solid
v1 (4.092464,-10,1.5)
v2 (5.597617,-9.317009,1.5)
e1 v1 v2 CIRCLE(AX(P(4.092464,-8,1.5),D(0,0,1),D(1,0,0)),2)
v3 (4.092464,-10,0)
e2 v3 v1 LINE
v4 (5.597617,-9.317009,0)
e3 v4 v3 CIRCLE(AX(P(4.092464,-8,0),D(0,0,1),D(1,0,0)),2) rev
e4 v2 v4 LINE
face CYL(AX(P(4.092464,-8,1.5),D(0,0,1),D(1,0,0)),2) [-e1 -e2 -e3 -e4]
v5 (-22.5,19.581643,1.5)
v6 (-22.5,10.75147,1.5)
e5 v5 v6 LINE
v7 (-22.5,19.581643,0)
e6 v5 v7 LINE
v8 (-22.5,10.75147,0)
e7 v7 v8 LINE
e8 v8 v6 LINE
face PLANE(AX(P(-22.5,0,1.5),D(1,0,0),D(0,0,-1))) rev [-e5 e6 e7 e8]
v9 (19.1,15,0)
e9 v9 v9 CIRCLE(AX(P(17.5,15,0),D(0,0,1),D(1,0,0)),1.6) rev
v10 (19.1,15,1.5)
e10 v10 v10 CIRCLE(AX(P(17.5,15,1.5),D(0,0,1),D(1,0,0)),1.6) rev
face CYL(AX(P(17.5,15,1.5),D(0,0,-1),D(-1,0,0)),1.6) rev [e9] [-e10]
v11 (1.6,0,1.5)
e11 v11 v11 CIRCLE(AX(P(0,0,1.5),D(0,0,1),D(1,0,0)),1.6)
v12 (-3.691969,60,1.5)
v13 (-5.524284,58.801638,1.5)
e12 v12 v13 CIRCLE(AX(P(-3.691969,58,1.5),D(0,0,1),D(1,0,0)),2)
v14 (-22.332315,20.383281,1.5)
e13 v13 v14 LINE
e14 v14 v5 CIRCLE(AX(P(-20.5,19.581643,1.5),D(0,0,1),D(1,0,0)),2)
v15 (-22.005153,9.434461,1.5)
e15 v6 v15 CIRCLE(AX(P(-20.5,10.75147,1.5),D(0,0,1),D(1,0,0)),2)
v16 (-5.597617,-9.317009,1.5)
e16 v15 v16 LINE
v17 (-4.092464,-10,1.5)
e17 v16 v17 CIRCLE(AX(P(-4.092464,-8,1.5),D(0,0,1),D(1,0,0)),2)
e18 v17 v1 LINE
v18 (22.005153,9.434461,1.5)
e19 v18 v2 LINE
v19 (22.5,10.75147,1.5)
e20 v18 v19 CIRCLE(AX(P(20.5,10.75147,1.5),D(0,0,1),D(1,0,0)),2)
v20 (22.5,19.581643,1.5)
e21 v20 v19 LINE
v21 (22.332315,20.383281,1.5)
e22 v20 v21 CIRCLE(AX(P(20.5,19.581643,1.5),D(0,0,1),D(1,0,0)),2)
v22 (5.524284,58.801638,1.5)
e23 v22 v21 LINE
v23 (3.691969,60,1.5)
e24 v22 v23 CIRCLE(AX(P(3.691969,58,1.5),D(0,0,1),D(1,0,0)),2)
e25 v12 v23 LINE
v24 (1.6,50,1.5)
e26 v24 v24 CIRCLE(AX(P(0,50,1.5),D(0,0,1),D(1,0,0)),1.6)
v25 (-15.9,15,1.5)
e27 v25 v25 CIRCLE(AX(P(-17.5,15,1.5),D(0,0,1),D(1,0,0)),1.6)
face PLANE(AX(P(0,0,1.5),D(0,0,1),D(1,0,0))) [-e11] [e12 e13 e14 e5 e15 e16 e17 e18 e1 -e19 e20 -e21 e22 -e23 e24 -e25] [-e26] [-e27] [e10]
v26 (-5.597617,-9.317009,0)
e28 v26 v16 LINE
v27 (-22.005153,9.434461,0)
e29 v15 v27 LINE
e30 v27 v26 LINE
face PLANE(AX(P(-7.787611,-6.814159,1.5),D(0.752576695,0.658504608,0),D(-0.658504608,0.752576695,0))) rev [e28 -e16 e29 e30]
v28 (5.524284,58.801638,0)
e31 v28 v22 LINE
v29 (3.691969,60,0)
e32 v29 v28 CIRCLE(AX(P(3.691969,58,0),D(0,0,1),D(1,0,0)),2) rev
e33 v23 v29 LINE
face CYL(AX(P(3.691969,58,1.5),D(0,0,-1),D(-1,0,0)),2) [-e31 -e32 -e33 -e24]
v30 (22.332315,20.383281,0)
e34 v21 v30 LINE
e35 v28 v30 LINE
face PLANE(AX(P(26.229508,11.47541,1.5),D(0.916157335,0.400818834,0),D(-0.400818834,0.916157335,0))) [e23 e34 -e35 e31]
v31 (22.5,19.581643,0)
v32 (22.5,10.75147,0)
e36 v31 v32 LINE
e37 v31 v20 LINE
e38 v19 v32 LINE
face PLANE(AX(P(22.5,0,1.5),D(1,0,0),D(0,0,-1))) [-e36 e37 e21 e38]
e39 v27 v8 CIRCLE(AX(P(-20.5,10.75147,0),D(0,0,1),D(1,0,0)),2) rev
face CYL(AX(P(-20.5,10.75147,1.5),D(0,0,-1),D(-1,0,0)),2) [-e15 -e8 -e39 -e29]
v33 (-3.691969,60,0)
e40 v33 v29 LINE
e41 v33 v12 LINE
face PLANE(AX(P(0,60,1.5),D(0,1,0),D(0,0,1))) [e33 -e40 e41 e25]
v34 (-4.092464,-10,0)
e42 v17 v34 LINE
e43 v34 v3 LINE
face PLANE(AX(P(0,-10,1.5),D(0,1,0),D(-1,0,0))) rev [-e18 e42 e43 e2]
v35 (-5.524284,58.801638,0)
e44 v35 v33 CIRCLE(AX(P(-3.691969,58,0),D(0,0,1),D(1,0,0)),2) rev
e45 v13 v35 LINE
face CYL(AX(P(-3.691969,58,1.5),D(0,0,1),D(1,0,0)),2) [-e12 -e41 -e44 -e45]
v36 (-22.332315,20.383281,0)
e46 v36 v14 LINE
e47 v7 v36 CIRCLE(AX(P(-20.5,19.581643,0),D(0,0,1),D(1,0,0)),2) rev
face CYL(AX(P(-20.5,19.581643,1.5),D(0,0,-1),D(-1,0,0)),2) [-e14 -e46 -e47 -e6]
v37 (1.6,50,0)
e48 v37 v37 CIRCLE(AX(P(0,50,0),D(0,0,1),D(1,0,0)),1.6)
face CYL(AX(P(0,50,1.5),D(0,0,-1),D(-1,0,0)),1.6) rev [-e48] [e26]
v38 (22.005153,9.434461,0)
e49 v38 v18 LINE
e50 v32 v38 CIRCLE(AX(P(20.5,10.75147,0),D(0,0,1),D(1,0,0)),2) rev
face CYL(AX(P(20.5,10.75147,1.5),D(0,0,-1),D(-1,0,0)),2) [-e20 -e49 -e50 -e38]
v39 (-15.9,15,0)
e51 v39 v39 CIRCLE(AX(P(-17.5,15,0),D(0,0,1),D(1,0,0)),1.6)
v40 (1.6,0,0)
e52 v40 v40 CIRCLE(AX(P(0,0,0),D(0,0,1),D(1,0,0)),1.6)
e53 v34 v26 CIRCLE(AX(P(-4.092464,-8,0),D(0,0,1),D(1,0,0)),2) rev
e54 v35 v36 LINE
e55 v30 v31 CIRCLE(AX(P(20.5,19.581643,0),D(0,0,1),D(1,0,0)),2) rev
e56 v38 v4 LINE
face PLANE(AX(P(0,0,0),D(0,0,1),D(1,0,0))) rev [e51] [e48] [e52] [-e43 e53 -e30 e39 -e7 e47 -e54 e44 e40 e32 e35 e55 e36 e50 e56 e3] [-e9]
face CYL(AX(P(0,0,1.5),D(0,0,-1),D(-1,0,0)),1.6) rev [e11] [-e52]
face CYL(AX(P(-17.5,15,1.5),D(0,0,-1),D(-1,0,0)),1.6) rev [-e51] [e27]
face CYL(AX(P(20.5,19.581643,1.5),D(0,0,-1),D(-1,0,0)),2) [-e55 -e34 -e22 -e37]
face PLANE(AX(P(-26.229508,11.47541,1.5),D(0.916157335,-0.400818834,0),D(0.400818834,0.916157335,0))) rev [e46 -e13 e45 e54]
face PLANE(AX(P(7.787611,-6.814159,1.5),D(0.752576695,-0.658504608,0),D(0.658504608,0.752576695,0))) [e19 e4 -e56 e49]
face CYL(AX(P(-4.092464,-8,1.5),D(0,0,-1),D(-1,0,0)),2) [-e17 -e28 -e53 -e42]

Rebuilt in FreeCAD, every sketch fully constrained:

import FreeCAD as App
import Part
import Sketcher


def edges_at(feature, points):
    """Names of the edges that pass closest to the given points."""
    edges = feature.Shape.Edges
    near = lambda p: min(range(len(edges)), key=lambda i: edges[i].distToShape(Part.Vertex(*p))[0])
    return sorted({f"Edge{near(p) + 1}" for p in points})

doc = App.newDocument("Part")
body = doc.addObject("PartDesign::Body", "Body")

sketch1 = body.newObject("Sketcher::SketchObject", "Sketch")
sketch1.AttachmentSupport = (doc.getObject("XY_Plane"), [""])
sketch1.MapMode = "FlatFace"
sketch1.addGeometry(Part.LineSegment(App.Vector(-5, 60, 0), App.Vector(-22.5, 20, 0)), False)
sketch1.addGeometry(Part.LineSegment(App.Vector(-22.5, 20, 0), App.Vector(-22.5, 10, 0)), False)
sketch1.addGeometry(Part.LineSegment(App.Vector(-22.5, 10, 0), App.Vector(-5, -10, 0)), False)
sketch1.addGeometry(Part.LineSegment(App.Vector(-5, -10, 0), App.Vector(5, -10, 0)), False)
sketch1.addGeometry(Part.LineSegment(App.Vector(5, -10, 0), App.Vector(22.5, 10, 0)), False)
sketch1.addGeometry(Part.LineSegment(App.Vector(22.5, 10, 0), App.Vector(22.5, 20, 0)), False)
sketch1.addGeometry(Part.LineSegment(App.Vector(22.5, 20, 0), App.Vector(5, 60, 0)), False)
sketch1.addGeometry(Part.LineSegment(App.Vector(5, 60, 0), App.Vector(-5, 60, 0)), False)
sketch1.addGeometry(Part.Circle(App.Vector(0, 0, 0), App.Vector(0, 0, 1), 1.6), False)
sketch1.addGeometry(Part.Circle(App.Vector(-17.5, 15, 0), App.Vector(0, 0, 1), 1.6), False)
sketch1.addGeometry(Part.Circle(App.Vector(17.5, 15, 0), App.Vector(0, 0, 1), 1.6), False)
sketch1.addGeometry(Part.Circle(App.Vector(0, 50, 0), App.Vector(0, 0, 1), 1.6), False)
sketch1.addConstraint(Sketcher.Constraint("Coincident", 0, 2, 1, 1))
sketch1.addConstraint(Sketcher.Constraint("Coincident", 1, 2, 2, 1))
sketch1.addConstraint(Sketcher.Constraint("Coincident", 2, 2, 3, 1))
sketch1.addConstraint(Sketcher.Constraint("Coincident", 3, 2, 4, 1))
sketch1.addConstraint(Sketcher.Constraint("Coincident", 4, 2, 5, 1))
sketch1.addConstraint(Sketcher.Constraint("Coincident", 5, 2, 6, 1))
sketch1.addConstraint(Sketcher.Constraint("Coincident", 6, 2, 7, 1))
sketch1.addConstraint(Sketcher.Constraint("Coincident", 7, 2, 0, 1))
sketch1.addConstraint(Sketcher.Constraint("Vertical", 1))
sketch1.addConstraint(Sketcher.Constraint("Horizontal", 3))
sketch1.addConstraint(Sketcher.Constraint("Vertical", 5))
sketch1.addConstraint(Sketcher.Constraint("Horizontal", 7))
sketch1.addConstraint(Sketcher.Constraint("Coincident", 8, 3, -1, 1))
sketch1.addConstraint(Sketcher.Constraint("Equal", 8, 9))
sketch1.addConstraint(Sketcher.Constraint("Equal", 9, 10))
sketch1.addConstraint(Sketcher.Constraint("Equal", 10, 11))
sketch1.addConstraint(Sketcher.Constraint("Symmetric", 9, 3, 10, 3, -2))
sketch1.addConstraint(Sketcher.Constraint("Symmetric", 1, 2, 4, 2, -2))
sketch1.addConstraint(Sketcher.Constraint("PointOnObject", 11, 3, -2))
sketch1.addConstraint(Sketcher.Constraint("Horizontal", 0, 2, 5, 2))
sketch1.addConstraint(Sketcher.Constraint("Vertical", 3, 2, 6, 2))
sketch1.addConstraint(Sketcher.Constraint("Vertical", 2, 2, 7, 2))
sketch1.addConstraint(Sketcher.Constraint("Equal", 7, 1))
sketch1.addConstraint(Sketcher.Constraint("Equal", 2, 4))
sketch1.addConstraint(Sketcher.Constraint("Diameter", 8, 3.2))
sketch1.addConstraint(Sketcher.Constraint("DistanceX", 3, 1, 3, 2, 10.0))
sketch1.addConstraint(Sketcher.Constraint("DistanceY", -1, 1, 9, 3, 15.0))
sketch1.addConstraint(Sketcher.Constraint("DistanceY", -1, 1, 11, 3, 50.0))
sketch1.addConstraint(Sketcher.Constraint("DistanceY", -1, 1, 0, 2, 20.0))
sketch1.addConstraint(Sketcher.Constraint("DistanceY", 2, 2, -1, 1, 10.0))
sketch1.addConstraint(Sketcher.Constraint("DistanceY", -1, 1, 6, 2, 60.0))
sketch1.addConstraint(Sketcher.Constraint("DistanceX", 9, 3, 10, 3, 35.0))
sketch1.addConstraint(Sketcher.Constraint("DistanceX", 0, 2, 9, 3, 5.0))
pad1 = body.newObject("PartDesign::Pad", "Pad")
pad1.Profile = sketch1
pad1.Length = 1.5
doc.recompute()

fillet = body.newObject("PartDesign::Fillet", "Fillet")
fillet.Base = (pad1, edges_at(pad1, [
    (22.5, 20, 0.75),
    (22.5, 10, 0.75),
    (5, -10, 0.75),
    (-5, -10, 0.75),
    (-22.5, 10, 0.75),
    (-22.5, 20, 0.75),
    (-5, 60, 0.75),
    (5, 60, 0.75),
]))
fillet.Radius = 2

doc.recompute()
